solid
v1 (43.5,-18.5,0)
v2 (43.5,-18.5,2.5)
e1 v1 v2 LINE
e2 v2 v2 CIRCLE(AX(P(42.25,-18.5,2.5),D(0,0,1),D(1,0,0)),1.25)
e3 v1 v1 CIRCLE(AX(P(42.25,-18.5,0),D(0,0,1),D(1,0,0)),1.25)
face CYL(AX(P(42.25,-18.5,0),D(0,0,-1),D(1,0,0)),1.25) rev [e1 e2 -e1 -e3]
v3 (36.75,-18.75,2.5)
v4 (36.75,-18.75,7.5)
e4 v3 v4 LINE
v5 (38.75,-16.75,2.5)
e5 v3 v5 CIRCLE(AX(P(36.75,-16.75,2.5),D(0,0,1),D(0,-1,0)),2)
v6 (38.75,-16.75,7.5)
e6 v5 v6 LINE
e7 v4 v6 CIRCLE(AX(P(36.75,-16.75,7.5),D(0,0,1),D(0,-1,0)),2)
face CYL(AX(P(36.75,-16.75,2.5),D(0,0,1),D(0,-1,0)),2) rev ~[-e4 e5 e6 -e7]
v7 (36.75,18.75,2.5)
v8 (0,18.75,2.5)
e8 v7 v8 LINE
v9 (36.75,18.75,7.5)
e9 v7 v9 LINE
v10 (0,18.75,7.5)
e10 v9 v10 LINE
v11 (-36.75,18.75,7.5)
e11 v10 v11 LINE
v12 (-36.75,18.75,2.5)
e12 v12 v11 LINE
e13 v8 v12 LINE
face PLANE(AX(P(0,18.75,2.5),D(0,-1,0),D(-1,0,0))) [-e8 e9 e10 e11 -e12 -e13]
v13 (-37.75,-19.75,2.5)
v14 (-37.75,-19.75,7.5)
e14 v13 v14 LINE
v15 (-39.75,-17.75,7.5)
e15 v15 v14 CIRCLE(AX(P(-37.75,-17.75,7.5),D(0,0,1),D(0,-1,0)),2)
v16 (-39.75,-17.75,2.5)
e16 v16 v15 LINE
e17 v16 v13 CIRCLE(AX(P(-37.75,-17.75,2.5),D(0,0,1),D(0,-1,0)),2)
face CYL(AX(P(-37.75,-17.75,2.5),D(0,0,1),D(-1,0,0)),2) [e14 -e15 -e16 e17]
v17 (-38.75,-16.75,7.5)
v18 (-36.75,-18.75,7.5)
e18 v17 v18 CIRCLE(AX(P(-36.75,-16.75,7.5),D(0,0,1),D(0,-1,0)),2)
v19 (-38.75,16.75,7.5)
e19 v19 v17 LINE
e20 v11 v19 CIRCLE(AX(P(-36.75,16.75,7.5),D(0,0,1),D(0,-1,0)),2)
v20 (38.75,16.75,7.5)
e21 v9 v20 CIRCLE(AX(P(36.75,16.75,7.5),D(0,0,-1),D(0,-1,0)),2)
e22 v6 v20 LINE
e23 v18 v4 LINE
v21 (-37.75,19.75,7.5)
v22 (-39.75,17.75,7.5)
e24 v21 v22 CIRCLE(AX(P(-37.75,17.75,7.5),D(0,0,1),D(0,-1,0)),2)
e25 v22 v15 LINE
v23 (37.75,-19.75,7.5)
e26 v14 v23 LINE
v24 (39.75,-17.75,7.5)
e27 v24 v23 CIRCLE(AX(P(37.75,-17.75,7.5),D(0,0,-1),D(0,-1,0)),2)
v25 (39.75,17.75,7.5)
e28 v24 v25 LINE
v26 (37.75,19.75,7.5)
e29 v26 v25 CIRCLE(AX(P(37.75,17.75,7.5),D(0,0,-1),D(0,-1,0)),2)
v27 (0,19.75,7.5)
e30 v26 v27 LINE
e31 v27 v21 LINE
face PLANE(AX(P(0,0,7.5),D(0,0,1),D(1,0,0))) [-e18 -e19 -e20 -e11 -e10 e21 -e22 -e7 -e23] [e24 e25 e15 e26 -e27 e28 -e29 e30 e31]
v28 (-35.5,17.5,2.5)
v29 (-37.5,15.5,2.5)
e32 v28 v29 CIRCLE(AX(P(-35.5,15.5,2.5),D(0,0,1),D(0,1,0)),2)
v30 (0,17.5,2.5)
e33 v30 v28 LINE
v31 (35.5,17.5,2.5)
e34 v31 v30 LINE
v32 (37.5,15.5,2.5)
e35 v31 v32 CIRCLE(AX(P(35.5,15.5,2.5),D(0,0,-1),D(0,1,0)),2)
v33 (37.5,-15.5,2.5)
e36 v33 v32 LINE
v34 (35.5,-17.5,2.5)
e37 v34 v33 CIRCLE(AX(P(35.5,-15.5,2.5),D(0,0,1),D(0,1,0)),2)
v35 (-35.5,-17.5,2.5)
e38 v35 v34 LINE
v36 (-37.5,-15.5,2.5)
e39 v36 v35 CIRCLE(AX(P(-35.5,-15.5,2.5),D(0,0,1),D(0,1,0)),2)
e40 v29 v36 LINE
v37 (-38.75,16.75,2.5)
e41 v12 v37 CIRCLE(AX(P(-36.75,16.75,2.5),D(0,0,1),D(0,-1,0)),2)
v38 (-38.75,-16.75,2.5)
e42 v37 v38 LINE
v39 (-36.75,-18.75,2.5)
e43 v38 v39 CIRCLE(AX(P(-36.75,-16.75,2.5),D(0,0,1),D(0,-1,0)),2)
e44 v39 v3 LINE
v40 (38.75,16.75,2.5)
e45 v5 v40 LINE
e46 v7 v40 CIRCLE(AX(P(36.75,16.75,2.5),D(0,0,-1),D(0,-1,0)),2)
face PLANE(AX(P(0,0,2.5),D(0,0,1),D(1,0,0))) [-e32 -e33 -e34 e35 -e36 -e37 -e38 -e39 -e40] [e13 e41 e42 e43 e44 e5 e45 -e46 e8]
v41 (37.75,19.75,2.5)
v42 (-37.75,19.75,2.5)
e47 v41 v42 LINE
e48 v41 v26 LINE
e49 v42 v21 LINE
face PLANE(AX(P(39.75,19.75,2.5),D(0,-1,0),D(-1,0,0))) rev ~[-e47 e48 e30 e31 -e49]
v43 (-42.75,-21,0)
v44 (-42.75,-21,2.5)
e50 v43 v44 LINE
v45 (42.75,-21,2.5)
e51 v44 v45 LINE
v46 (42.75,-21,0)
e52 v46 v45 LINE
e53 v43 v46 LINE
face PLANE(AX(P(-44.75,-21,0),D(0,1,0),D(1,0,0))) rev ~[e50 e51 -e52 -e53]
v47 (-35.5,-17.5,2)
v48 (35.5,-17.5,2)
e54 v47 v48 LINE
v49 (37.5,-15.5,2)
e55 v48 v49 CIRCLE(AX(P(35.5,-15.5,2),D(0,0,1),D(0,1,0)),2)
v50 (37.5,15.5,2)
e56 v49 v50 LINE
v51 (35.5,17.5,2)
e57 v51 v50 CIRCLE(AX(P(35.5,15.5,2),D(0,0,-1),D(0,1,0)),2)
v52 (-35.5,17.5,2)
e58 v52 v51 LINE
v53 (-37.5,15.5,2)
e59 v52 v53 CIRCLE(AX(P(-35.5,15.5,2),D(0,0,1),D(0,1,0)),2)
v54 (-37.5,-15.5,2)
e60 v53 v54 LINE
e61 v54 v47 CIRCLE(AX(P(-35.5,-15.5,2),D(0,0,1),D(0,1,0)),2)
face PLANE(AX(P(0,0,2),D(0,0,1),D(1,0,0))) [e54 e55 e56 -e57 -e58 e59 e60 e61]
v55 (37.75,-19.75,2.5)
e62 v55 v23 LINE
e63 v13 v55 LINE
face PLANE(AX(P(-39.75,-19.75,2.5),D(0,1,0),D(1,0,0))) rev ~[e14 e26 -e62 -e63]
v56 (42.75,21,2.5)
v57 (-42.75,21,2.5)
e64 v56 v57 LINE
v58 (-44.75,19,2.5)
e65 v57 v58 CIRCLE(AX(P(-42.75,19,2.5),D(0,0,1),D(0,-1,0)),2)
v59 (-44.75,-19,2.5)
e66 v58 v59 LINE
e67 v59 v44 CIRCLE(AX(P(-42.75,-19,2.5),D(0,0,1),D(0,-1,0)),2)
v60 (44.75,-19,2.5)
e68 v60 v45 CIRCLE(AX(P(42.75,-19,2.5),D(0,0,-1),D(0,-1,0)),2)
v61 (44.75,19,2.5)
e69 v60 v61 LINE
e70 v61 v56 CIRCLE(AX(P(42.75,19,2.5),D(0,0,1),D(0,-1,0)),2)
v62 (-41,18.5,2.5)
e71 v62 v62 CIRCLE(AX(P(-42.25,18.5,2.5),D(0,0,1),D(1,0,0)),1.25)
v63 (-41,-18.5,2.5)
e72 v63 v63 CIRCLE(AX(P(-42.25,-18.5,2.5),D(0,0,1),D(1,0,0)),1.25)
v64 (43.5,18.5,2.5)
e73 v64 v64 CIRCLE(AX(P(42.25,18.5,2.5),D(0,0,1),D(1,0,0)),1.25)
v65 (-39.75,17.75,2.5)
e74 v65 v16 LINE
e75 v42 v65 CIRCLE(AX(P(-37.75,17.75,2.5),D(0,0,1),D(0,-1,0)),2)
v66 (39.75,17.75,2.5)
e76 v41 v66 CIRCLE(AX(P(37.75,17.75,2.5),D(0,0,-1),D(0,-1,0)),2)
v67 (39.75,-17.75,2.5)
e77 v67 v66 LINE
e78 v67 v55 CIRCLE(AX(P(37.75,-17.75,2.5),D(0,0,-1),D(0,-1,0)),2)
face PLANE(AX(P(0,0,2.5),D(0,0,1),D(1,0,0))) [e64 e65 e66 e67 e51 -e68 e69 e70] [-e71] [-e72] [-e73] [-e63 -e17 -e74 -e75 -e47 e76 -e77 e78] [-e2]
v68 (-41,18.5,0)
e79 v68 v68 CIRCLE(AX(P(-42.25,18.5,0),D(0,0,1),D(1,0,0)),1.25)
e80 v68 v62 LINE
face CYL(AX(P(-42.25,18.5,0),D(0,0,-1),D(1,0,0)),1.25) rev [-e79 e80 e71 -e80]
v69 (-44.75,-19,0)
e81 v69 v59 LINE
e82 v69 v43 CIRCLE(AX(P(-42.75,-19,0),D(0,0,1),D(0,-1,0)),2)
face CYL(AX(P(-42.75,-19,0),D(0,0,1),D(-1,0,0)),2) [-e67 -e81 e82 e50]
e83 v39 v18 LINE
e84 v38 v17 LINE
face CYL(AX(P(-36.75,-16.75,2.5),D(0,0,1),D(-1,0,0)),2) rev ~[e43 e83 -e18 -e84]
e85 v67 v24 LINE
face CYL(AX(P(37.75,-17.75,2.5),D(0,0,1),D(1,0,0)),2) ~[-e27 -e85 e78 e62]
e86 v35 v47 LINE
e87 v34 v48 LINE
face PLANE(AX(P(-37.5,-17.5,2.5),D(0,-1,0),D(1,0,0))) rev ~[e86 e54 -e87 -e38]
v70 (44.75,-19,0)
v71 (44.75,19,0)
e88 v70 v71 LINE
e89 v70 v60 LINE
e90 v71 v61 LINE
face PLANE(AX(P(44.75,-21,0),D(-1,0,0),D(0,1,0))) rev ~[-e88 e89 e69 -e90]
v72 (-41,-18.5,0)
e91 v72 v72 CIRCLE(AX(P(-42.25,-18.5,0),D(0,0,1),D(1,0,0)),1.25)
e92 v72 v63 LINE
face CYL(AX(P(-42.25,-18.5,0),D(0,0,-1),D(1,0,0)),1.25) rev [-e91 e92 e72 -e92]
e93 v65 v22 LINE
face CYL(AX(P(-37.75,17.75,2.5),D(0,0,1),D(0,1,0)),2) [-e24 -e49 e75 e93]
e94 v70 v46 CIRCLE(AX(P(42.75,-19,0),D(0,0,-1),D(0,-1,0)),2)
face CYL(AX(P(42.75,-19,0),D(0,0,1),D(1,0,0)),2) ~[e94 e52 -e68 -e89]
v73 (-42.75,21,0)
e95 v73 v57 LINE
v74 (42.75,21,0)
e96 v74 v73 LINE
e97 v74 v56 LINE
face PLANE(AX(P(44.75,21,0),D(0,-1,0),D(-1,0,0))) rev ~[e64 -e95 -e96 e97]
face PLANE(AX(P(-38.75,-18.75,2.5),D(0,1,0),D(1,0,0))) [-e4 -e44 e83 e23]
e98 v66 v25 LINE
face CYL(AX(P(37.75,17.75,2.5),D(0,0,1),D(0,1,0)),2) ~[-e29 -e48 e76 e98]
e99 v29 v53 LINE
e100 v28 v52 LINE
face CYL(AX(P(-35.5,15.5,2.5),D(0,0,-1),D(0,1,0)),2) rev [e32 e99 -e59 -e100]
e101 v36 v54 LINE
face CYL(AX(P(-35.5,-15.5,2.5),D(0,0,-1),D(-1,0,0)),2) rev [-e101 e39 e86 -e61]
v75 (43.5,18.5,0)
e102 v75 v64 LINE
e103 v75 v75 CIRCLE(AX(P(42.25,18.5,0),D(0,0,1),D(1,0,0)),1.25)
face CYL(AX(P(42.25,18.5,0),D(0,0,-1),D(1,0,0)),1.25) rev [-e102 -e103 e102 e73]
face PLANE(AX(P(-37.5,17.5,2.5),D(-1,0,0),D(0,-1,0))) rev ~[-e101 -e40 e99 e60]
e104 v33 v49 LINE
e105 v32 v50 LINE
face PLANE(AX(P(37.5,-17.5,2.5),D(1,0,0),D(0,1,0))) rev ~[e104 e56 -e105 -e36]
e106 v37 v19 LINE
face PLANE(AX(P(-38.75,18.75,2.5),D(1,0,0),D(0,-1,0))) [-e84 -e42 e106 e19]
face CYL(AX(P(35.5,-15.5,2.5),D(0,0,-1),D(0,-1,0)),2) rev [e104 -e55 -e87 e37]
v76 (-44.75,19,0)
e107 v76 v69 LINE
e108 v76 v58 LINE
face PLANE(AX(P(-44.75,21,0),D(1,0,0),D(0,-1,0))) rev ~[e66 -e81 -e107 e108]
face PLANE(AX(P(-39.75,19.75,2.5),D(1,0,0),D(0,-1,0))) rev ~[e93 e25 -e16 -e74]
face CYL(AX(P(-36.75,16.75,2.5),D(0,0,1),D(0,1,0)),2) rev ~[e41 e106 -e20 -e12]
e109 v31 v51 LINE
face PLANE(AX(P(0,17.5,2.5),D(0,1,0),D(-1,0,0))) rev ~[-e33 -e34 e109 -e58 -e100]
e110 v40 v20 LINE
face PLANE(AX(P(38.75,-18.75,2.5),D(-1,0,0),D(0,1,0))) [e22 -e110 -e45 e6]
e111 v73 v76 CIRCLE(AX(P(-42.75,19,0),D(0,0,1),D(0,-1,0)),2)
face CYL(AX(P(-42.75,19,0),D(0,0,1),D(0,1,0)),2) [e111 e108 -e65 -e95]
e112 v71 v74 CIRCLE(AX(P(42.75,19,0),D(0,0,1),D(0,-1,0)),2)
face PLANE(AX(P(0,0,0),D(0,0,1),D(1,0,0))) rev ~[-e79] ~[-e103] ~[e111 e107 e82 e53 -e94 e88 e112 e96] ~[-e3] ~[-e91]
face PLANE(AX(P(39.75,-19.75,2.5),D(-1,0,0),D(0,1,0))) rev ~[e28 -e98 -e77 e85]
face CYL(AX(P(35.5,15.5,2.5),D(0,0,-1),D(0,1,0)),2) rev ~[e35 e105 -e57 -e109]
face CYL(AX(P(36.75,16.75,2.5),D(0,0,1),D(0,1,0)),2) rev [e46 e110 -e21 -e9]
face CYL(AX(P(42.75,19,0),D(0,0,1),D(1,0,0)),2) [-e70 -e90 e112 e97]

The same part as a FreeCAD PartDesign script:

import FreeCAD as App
import Part
import Sketcher


def edges_at(feature, points):
    """Names of the edges that pass closest to the given points."""
    edges = feature.Shape.Edges
    near = lambda p: min(range(len(edges)), key=lambda i: edges[i].distToShape(Part.Vertex(*p))[0])
    return sorted({f"Edge{near(p) + 1}" for p in points})

doc = App.newDocument("Part")
body = doc.addObject("PartDesign::Body", "Body")

sketch1 = doc.addObject("Sketcher::SketchObject", "Sketch")
body.addObject(sketch1)
sketch1.AttachmentSupport = (doc.XY_Plane, [""])
sketch1.MapMode = "FlatFace"
sketch1.addGeometry([
    Part.LineSegment(App.Vector(44.8, -21, 0), App.Vector(44.8, 21, 0)),
    Part.LineSegment(App.Vector(44.8, 21, 0), App.Vector(-44.8, 21, 0)),
    Part.LineSegment(App.Vector(-44.8, 21, 0), App.Vector(-44.8, -21, 0)),
    Part.LineSegment(App.Vector(-44.8, -21, 0), App.Vector(44.8, -21, 0)),
    Part.Circle(App.Vector(-42.2, -18.5, 0), App.Vector(0, 0, 1), 1.2),
    Part.Circle(App.Vector(42.2, -18.5, 0), App.Vector(0, 0, 1), 1.2),
    Part.Circle(App.Vector(-42.2, 18.5, 0), App.Vector(0, 0, 1), 1.2),
    Part.Circle(App.Vector(42.2, 18.5, 0), App.Vector(0, 0, 1), 1.2),
], False)
sketch1.addConstraint([
    Sketcher.Constraint("Coincident", 0, 2, 1, 1),
    Sketcher.Constraint("Coincident", 1, 2, 2, 1),
    Sketcher.Constraint("Coincident", 2, 2, 3, 1),
    Sketcher.Constraint("Coincident", 3, 2, 0, 1),
    Sketcher.Constraint("Vertical", 0),
    Sketcher.Constraint("Horizontal", 1),
    Sketcher.Constraint("Vertical", 2),
    Sketcher.Constraint("Horizontal", 3),
    Sketcher.Constraint("Equal", 4, 5),
    Sketcher.Constraint("Equal", 5, 6),
    Sketcher.Constraint("Equal", 6, 7),
    Sketcher.Constraint("Symmetric", 5, 3, 6, 3, -1, 1),
    Sketcher.Constraint("Symmetric", 4, 3, 7, 3, -1, 1),
    Sketcher.Constraint("Symmetric", 0, 2, 2, 2, -1, 1),
    Sketcher.Constraint("Symmetric", 4, 3, 5, 3, -2),
    Sketcher.Constraint("Diameter", 4, 2.5),
    Sketcher.Constraint("DistanceX", 7, 3, 0, 2, 2.5),
    Sketcher.Constraint("DistanceY", 7, 3, 0, 2, 2.5),
    Sketcher.Constraint("DistanceY", 0, 1, 0, 2, 42.0),
    Sketcher.Constraint("DistanceX", 1, 2, 1, 1, 89.5),
])
pad1 = doc.addObject("PartDesign::Pad", "Pad")
body.addObject(pad1)
pad1.Profile = sketch1
pad1.Length = 2.5

sketch2 = doc.addObject("Sketcher::SketchObject", "Sketch001")
body.addObject(sketch2)
sketch2.AttachmentSupport = (doc.XY_Plane, [""])
sketch2.MapMode = "FlatFace"
sketch2.AttachmentOffset = App.Placement(App.Vector(0, 0, 2.5), App.Rotation())
sketch2.addGeometry([
    Part.LineSegment(App.Vector(40, 20, 0), App.Vector(0, 20, 0)),
    Part.LineSegment(App.Vector(0, 20, 0), App.Vector(-40, 20, 0)),
    Part.LineSegment(App.Vector(-40, 20, 0), App.Vector(-40, -20, 0)),
    Part.LineSegment(App.Vector(-40, -20, 0), App.Vector(40, -20, 0)),
    Part.LineSegment(App.Vector(40, -20, 0), App.Vector(40, 20, 0)),
    Part.LineSegment(App.Vector(-39, 19, 0), App.Vector(0, 19, 0)),
    Part.LineSegment(App.Vector(0, 19, 0), App.Vector(39, 19, 0)),
    Part.LineSegment(App.Vector(39, 19, 0), App.Vector(39, -19, 0)),
    Part.LineSegment(App.Vector(39, -19, 0), App.Vector(-39, -19, 0)),
    Part.LineSegment(App.Vector(-39, -19, 0), App.Vector(-39, 19, 0)),
], False)
sketch2.addConstraint([
    Sketcher.Constraint("Coincident", 0, 2, 1, 1),
    Sketcher.Constraint("Coincident", 1, 2, 2, 1),
    Sketcher.Constraint("Coincident", 2, 2, 3, 1),
    Sketcher.Constraint("Coincident", 3, 2, 4, 1),
    Sketcher.Constraint("Coincident", 4, 2, 0, 1),
    Sketcher.Constraint("Coincident", 5, 2, 6, 1),
    Sketcher.Constraint("Coincident", 6, 2, 7, 1),
    Sketcher.Constraint("Coincident", 7, 2, 8, 1),
    Sketcher.Constraint("Coincident", 8, 2, 9, 1),
    Sketcher.Constraint("Coincident", 9, 2, 5, 1),
    Sketcher.Constraint("Horizontal", 0),
    Sketcher.Constraint("Horizontal", 1),
    Sketcher.Constraint("Vertical", 2),
    Sketcher.Constraint("Horizontal", 3),
    Sketcher.Constraint("Vertical", 4),
    Sketcher.Constraint("Horizontal", 5),
    Sketcher.Constraint("Horizontal", 6),
    Sketcher.Constraint("Vertical", 7),
    Sketcher.Constraint("Horizontal", 8),
    Sketcher.Constraint("Vertical", 9),
    Sketcher.Constraint("Symmetric", 1, 2, 3, 2, -1, 1),
    Sketcher.Constraint("Symmetric", 6, 2, 8, 2, -1, 1),
    Sketcher.Constraint("PointOnObject", 0, 2, -2),
    Sketcher.Constraint("PointOnObject", 5, 2, -2),
    Sketcher.Constraint("DistanceX", 3, 1, 3, 2, 79.5),
    Sketcher.Constraint("DistanceX", 8, 2, 8, 1, 77.5),
    Sketcher.Constraint("DistanceY", 2, 2, 2, 1, 39.5),
    Sketcher.Constraint("DistanceY", 7, 2, 7, 1, 37.5),
])
pad2 = doc.addObject("PartDesign::Pad", "Pad001")
body.addObject(pad2)
pad2.Profile = sketch2
pad2.Length = 5

sketch3 = doc.addObject("Sketcher::SketchObject", "Sketch002")
body.addObject(sketch3)
sketch3.AttachmentSupport = (doc.XY_Plane, [""])
sketch3.MapMode = "FlatFace"
sketch3.AttachmentOffset = App.Placement(App.Vector(0, 0, 2.5), App.Rotation())
sketch3.addGeometry([
    Part.LineSegment(App.Vector(38, 18, 0), App.Vector(-38, 18, 0)),
    Part.LineSegment(App.Vector(-38, 18, 0), App.Vector(-38, -18, 0)),
    Part.LineSegment(App.Vector(-38, -18, 0), App.Vector(38, -18, 0)),
    Part.LineSegment(App.Vector(38, -18, 0), App.Vector(38, 18, 0)),
], False)
sketch3.addConstraint([
    Sketcher.Constraint("Coincident", 0, 2, 1, 1),
    Sketcher.Constraint("Coincident", 1, 2, 2, 1),
    Sketcher.Constraint("Coincident", 2, 2, 3, 1),
    Sketcher.Constraint("Coincident", 3, 2, 0, 1),
    Sketcher.Constraint("Horizontal", 0),
    Sketcher.Constraint("Vertical", 1),
    Sketcher.Constraint("Horizontal", 2),
    Sketcher.Constraint("Vertical", 3),
    Sketcher.Constraint("Symmetric", 0, 2, 2, 2, -1, 1),
    Sketcher.Constraint("DistanceX", 0, 2, 0, 1, 75.0),
    Sketcher.Constraint("DistanceY", 1, 2, 1, 1, 35.0),
])
pocket1 = doc.addObject("PartDesign::Pocket", "Pocket")
body.addObject(pocket1)
pocket1.Profile = sketch3
pocket1.Length = 0.5
doc.recompute()

fillet = doc.addObject("PartDesign::Fillet", "Fillet")
body.addObject(fillet)
fillet.Base = (pocket1, edges_at(pocket1, [
    (-39.75, -19.75, 5),
    (-44.75, -21, 1.25),
    (-38.75, -18.75, 5),
    (-37.5, -17.5, 2.25),
    (-37.5, 17.5, 2.25),
    (-38.75, 18.75, 5),
    (-39.75, 19.75, 5),
    (-44.75, 21, 1.25),
    (39.75, 19.75, 5),
    (44.75, 21, 1.25),
    (39.75, -19.75, 5),
    (44.75, -21, 1.25),
    (37.5, -17.5, 2.25),
    (38.75, -18.75, 5),
    (38.75, 18.75, 5),
    (37.5, 17.5, 2.25),
]))
fillet.Radius = 2

doc.recompute()
